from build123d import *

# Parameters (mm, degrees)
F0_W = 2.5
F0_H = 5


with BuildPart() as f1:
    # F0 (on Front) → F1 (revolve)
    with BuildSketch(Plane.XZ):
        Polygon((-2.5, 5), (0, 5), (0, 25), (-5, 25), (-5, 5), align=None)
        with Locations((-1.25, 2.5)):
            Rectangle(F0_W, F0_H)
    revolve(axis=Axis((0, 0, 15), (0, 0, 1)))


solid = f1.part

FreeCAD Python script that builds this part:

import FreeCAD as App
import Part
import Sketcher
from FreeCAD import Vector
Q = App.Units.Quantity

doc = App.newDocument("Part")
body = doc.addObject("PartDesign::Body", "Body")

# Sketch on XZ plane
sketch1 = doc.addObject("Sketcher::SketchObject", "Sketch")
body.addObject(sketch1)
sketch1.AttachmentSupport = (doc.XZ_Plane, [""])
sketch1.MapMode = "FlatFace"
sketch1.addGeometry([
    Part.LineSegment(Vector(0, 25, 0), Vector(-5, 25, 0)),  # 0
    Part.LineSegment(Vector(-5, 25, 0), Vector(-5, 5, 0)),  # 1
    Part.LineSegment(Vector(-5, 5, 0), Vector(-2.5, 5, 0)),  # 2
    Part.LineSegment(Vector(-2.5, 5, 0), Vector(-2.5, 0, 0)),  # 3
    Part.LineSegment(Vector(-2.5, 0, 0), Vector(0, 0, 0)),  # 4
    Part.LineSegment(Vector(0, 0, 0), Vector(0, 25, 0)),  # 5
], False)
sketch1.addConstraint([
    Sketcher.Constraint("Coincident", 0, 2, 1, 1),
    Sketcher.Constraint("Coincident", 1, 2, 2, 1),
    Sketcher.Constraint("Coincident", 2, 2, 3, 1),
    Sketcher.Constraint("Coincident", 3, 2, 4, 1),
    Sketcher.Constraint("Coincident", 4, 2, 5, 1),
    Sketcher.Constraint("Coincident", 5, 2, 0, 1),
    Sketcher.Constraint("Horizontal", 0),
    Sketcher.Constraint("Vertical", 1),
    Sketcher.Constraint("Horizontal", 2),
    Sketcher.Constraint("Vertical", 3),
    Sketcher.Constraint("Horizontal", 4),
    Sketcher.Constraint("Vertical", 5),
    Sketcher.Constraint("Coincident", 4, 2, -1, 1),
    Sketcher.Constraint("Equal", 2, 4),
    Sketcher.Constraint("Equal", 0, 3),
    Sketcher.Constraint("DistanceX", 0, 2, 0, 1, Q("5 mm")),
    Sketcher.Constraint("DistanceY", 1, 2, 1, 1, Q("20 mm")),
])
revolution = doc.addObject("PartDesign::Revolution", "Revolution")
body.addObject(revolution)
revolution.Profile = sketch1
revolution.ReferenceAxis = (sketch1, ["V_Axis"])
revolution.Angle = 360

doc.recompute()
